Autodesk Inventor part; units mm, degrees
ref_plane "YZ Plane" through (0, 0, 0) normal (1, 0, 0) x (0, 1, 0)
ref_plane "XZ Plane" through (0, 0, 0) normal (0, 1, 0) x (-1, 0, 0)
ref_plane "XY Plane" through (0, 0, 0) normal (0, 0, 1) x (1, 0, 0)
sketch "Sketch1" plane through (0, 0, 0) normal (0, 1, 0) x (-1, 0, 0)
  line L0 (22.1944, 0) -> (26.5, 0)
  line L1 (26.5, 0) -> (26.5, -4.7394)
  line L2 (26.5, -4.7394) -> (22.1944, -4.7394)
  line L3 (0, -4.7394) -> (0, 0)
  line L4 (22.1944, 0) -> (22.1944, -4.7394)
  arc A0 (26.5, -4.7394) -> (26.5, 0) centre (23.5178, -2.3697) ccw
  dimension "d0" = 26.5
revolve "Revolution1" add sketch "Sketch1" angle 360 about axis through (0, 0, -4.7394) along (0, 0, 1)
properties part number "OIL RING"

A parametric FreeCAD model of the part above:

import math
import FreeCAD as App
import Part
import Sketcher
from FreeCAD import Vector

doc = App.newDocument("Part")
params = doc.addObject("Spreadsheet::Sheet", "Params")
for row, (alias, value) in enumerate([
    ("revolution_angle", "360 deg"),
], start=1):
    params.set(f"A{row}", alias)
    params.set(f"B{row}", "=" + value)
    params.setAlias(f"B{row}", alias)

body = doc.addObject("PartDesign::Body", "Body")

sketch1 = doc.addObject("Sketcher::SketchObject", "Sketch")
body.addObject(sketch1)
sketch1.AttachmentSupport = (doc.XZ_Plane, [""])
sketch1.MapMode = "FlatFace"
sketch1.addGeometry(Part.LineSegment(Vector(-26.5, 0, 0), Vector(-22.2, 0, 0)), False)
sketch1.addGeometry(Part.LineSegment(Vector(-22.2, 0, 0), Vector(-22.2, -4.7, 0)), False)
sketch1.addGeometry(Part.LineSegment(Vector(-22.2, -4.7, 0), Vector(-26.5, -4.7, 0)), False)
sketch1.addGeometry(Part.ArcOfCircle(Part.Circle(Vector(-23.5, -2.4, 0), Vector(0, 0, 1), 3.8), math.radians(142), math.radians(218)), False)
sketch1.addConstraint(Sketcher.Constraint("Coincident", 0, 2, 1, 1))
sketch1.addConstraint(Sketcher.Constraint("Coincident", 1, 2, 2, 1))
sketch1.addConstraint(Sketcher.Constraint("Coincident", 2, 2, 3, 2))
sketch1.addConstraint(Sketcher.Constraint("Coincident", 3, 1, 0, 1))
sketch1.addConstraint(Sketcher.Constraint("Horizontal", 0))
sketch1.addConstraint(Sketcher.Constraint("Vertical", 1))
sketch1.addConstraint(Sketcher.Constraint("Horizontal", 2))
sketch1.addConstraint(Sketcher.Constraint("PointOnObject", 0, 2, -1))
sketch1.addConstraint(Sketcher.Constraint("Vertical", 2, 2, 3, 1))
sketch1.addConstraint(Sketcher.Constraint("DistanceX", 2, 2, -1, 1, 26.5))
sketch1.addConstraint(Sketcher.Constraint("Radius", 3, 3.809))
sketch1.addConstraint(Sketcher.Constraint("DistanceX", 0, 1, 0, 2, 4.3056))
sketch1.addConstraint(Sketcher.Constraint("DistanceY", 1, 2, 1, 1, 4.7394))
revolution = doc.addObject("PartDesign::Revolution", "Revolution")
body.addObject(revolution)
revolution.Profile = sketch1
revolution.ReferenceAxis = (sketch1, ["V_Axis"])
revolution.setExpression("Angle", "Params.revolution_angle")

doc.recompute()
